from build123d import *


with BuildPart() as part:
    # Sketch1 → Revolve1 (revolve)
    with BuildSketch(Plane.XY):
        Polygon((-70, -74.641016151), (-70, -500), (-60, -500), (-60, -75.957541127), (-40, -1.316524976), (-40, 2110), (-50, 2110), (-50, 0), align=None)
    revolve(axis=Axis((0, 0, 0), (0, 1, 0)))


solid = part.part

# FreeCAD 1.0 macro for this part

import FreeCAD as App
import Part
import Sketcher
from FreeCAD import Vector
Q = App.Units.Quantity

doc = App.newDocument("Part")
body = doc.addObject("PartDesign::Body", "Body")

sketch1 = body.newObject("Sketcher::SketchObject", "Sketch")
sketch1.AttachmentSupport = (doc.getObject("XY_Plane"), [""])
sketch1.MapMode = "FlatFace"
sketch1.addGeometry([
    Part.LineSegment(Vector(-70, -74.641016, 0), Vector(-70, -500, 0)),
    Part.LineSegment(Vector(-70, -500, 0), Vector(-60, -500, 0)),
    Part.LineSegment(Vector(-60, -500, 0), Vector(-60, -75.957541, 0)),
    Part.LineSegment(Vector(-60, -75.957541, 0), Vector(-40, -1.316525, 0)),
    Part.LineSegment(Vector(-40, -1.316525, 0), Vector(-40, 2110, 0)),
    Part.LineSegment(Vector(-40, 2110, 0), Vector(-50, 2110, 0)),
    Part.LineSegment(Vector(-50, 2110, 0), Vector(-50, 0, 0)),
    Part.LineSegment(Vector(-50, 0, 0), Vector(-70, -74.641016, 0)),
], False)
sketch1.addConstraint([
    Sketcher.Constraint("Coincident", 0, 2, 1, 1),
    Sketcher.Constraint("Coincident", 1, 2, 2, 1),
    Sketcher.Constraint("Coincident", 2, 2, 3, 1),
    Sketcher.Constraint("Coincident", 3, 2, 4, 1),
    Sketcher.Constraint("Coincident", 4, 2, 5, 1),
    Sketcher.Constraint("Coincident", 5, 2, 6, 1),
    Sketcher.Constraint("Coincident", 6, 2, 7, 1),
    Sketcher.Constraint("Coincident", 7, 2, 0, 1),
    Sketcher.Constraint("Vertical", 0),
    Sketcher.Constraint("Horizontal", 1),
    Sketcher.Constraint("Vertical", 2),
    Sketcher.Constraint("Vertical", 4),
    Sketcher.Constraint("Horizontal", 5),
    Sketcher.Constraint("Vertical", 6),
    Sketcher.Constraint("PointOnObject", 6, 2, -1),
    Sketcher.Constraint("Parallel", 3, 7),
    Sketcher.Constraint("Equal", 1, 5),
    Sketcher.Constraint("DistanceX", 1, 1, 1, 2, Q("10 mm")),
    Sketcher.Constraint("DistanceY", 6, 2, 6, 1, Q("2110 mm")),
    Sketcher.Constraint("Angle", 3, Q("75 deg")),
    Sketcher.Constraint("DistanceX", 0, 2, -1, 1, Q("70 mm")),
    Sketcher.Constraint("DistanceY", 0, 2, -1, 1, Q("500 mm")),
    Sketcher.Constraint("DistanceX", 3, 2, -1, 1, Q("40 mm")),
    Sketcher.Constraint("DistanceY", 2, 1, 2, 2, Q("424.042459 mm")),
])
revolution = body.newObject("PartDesign::Revolution", "Revolution")
revolution.Profile = sketch1
revolution.ReferenceAxis = (sketch1, ["V_Axis"])
revolution.Angle = 360

doc.recompute()
